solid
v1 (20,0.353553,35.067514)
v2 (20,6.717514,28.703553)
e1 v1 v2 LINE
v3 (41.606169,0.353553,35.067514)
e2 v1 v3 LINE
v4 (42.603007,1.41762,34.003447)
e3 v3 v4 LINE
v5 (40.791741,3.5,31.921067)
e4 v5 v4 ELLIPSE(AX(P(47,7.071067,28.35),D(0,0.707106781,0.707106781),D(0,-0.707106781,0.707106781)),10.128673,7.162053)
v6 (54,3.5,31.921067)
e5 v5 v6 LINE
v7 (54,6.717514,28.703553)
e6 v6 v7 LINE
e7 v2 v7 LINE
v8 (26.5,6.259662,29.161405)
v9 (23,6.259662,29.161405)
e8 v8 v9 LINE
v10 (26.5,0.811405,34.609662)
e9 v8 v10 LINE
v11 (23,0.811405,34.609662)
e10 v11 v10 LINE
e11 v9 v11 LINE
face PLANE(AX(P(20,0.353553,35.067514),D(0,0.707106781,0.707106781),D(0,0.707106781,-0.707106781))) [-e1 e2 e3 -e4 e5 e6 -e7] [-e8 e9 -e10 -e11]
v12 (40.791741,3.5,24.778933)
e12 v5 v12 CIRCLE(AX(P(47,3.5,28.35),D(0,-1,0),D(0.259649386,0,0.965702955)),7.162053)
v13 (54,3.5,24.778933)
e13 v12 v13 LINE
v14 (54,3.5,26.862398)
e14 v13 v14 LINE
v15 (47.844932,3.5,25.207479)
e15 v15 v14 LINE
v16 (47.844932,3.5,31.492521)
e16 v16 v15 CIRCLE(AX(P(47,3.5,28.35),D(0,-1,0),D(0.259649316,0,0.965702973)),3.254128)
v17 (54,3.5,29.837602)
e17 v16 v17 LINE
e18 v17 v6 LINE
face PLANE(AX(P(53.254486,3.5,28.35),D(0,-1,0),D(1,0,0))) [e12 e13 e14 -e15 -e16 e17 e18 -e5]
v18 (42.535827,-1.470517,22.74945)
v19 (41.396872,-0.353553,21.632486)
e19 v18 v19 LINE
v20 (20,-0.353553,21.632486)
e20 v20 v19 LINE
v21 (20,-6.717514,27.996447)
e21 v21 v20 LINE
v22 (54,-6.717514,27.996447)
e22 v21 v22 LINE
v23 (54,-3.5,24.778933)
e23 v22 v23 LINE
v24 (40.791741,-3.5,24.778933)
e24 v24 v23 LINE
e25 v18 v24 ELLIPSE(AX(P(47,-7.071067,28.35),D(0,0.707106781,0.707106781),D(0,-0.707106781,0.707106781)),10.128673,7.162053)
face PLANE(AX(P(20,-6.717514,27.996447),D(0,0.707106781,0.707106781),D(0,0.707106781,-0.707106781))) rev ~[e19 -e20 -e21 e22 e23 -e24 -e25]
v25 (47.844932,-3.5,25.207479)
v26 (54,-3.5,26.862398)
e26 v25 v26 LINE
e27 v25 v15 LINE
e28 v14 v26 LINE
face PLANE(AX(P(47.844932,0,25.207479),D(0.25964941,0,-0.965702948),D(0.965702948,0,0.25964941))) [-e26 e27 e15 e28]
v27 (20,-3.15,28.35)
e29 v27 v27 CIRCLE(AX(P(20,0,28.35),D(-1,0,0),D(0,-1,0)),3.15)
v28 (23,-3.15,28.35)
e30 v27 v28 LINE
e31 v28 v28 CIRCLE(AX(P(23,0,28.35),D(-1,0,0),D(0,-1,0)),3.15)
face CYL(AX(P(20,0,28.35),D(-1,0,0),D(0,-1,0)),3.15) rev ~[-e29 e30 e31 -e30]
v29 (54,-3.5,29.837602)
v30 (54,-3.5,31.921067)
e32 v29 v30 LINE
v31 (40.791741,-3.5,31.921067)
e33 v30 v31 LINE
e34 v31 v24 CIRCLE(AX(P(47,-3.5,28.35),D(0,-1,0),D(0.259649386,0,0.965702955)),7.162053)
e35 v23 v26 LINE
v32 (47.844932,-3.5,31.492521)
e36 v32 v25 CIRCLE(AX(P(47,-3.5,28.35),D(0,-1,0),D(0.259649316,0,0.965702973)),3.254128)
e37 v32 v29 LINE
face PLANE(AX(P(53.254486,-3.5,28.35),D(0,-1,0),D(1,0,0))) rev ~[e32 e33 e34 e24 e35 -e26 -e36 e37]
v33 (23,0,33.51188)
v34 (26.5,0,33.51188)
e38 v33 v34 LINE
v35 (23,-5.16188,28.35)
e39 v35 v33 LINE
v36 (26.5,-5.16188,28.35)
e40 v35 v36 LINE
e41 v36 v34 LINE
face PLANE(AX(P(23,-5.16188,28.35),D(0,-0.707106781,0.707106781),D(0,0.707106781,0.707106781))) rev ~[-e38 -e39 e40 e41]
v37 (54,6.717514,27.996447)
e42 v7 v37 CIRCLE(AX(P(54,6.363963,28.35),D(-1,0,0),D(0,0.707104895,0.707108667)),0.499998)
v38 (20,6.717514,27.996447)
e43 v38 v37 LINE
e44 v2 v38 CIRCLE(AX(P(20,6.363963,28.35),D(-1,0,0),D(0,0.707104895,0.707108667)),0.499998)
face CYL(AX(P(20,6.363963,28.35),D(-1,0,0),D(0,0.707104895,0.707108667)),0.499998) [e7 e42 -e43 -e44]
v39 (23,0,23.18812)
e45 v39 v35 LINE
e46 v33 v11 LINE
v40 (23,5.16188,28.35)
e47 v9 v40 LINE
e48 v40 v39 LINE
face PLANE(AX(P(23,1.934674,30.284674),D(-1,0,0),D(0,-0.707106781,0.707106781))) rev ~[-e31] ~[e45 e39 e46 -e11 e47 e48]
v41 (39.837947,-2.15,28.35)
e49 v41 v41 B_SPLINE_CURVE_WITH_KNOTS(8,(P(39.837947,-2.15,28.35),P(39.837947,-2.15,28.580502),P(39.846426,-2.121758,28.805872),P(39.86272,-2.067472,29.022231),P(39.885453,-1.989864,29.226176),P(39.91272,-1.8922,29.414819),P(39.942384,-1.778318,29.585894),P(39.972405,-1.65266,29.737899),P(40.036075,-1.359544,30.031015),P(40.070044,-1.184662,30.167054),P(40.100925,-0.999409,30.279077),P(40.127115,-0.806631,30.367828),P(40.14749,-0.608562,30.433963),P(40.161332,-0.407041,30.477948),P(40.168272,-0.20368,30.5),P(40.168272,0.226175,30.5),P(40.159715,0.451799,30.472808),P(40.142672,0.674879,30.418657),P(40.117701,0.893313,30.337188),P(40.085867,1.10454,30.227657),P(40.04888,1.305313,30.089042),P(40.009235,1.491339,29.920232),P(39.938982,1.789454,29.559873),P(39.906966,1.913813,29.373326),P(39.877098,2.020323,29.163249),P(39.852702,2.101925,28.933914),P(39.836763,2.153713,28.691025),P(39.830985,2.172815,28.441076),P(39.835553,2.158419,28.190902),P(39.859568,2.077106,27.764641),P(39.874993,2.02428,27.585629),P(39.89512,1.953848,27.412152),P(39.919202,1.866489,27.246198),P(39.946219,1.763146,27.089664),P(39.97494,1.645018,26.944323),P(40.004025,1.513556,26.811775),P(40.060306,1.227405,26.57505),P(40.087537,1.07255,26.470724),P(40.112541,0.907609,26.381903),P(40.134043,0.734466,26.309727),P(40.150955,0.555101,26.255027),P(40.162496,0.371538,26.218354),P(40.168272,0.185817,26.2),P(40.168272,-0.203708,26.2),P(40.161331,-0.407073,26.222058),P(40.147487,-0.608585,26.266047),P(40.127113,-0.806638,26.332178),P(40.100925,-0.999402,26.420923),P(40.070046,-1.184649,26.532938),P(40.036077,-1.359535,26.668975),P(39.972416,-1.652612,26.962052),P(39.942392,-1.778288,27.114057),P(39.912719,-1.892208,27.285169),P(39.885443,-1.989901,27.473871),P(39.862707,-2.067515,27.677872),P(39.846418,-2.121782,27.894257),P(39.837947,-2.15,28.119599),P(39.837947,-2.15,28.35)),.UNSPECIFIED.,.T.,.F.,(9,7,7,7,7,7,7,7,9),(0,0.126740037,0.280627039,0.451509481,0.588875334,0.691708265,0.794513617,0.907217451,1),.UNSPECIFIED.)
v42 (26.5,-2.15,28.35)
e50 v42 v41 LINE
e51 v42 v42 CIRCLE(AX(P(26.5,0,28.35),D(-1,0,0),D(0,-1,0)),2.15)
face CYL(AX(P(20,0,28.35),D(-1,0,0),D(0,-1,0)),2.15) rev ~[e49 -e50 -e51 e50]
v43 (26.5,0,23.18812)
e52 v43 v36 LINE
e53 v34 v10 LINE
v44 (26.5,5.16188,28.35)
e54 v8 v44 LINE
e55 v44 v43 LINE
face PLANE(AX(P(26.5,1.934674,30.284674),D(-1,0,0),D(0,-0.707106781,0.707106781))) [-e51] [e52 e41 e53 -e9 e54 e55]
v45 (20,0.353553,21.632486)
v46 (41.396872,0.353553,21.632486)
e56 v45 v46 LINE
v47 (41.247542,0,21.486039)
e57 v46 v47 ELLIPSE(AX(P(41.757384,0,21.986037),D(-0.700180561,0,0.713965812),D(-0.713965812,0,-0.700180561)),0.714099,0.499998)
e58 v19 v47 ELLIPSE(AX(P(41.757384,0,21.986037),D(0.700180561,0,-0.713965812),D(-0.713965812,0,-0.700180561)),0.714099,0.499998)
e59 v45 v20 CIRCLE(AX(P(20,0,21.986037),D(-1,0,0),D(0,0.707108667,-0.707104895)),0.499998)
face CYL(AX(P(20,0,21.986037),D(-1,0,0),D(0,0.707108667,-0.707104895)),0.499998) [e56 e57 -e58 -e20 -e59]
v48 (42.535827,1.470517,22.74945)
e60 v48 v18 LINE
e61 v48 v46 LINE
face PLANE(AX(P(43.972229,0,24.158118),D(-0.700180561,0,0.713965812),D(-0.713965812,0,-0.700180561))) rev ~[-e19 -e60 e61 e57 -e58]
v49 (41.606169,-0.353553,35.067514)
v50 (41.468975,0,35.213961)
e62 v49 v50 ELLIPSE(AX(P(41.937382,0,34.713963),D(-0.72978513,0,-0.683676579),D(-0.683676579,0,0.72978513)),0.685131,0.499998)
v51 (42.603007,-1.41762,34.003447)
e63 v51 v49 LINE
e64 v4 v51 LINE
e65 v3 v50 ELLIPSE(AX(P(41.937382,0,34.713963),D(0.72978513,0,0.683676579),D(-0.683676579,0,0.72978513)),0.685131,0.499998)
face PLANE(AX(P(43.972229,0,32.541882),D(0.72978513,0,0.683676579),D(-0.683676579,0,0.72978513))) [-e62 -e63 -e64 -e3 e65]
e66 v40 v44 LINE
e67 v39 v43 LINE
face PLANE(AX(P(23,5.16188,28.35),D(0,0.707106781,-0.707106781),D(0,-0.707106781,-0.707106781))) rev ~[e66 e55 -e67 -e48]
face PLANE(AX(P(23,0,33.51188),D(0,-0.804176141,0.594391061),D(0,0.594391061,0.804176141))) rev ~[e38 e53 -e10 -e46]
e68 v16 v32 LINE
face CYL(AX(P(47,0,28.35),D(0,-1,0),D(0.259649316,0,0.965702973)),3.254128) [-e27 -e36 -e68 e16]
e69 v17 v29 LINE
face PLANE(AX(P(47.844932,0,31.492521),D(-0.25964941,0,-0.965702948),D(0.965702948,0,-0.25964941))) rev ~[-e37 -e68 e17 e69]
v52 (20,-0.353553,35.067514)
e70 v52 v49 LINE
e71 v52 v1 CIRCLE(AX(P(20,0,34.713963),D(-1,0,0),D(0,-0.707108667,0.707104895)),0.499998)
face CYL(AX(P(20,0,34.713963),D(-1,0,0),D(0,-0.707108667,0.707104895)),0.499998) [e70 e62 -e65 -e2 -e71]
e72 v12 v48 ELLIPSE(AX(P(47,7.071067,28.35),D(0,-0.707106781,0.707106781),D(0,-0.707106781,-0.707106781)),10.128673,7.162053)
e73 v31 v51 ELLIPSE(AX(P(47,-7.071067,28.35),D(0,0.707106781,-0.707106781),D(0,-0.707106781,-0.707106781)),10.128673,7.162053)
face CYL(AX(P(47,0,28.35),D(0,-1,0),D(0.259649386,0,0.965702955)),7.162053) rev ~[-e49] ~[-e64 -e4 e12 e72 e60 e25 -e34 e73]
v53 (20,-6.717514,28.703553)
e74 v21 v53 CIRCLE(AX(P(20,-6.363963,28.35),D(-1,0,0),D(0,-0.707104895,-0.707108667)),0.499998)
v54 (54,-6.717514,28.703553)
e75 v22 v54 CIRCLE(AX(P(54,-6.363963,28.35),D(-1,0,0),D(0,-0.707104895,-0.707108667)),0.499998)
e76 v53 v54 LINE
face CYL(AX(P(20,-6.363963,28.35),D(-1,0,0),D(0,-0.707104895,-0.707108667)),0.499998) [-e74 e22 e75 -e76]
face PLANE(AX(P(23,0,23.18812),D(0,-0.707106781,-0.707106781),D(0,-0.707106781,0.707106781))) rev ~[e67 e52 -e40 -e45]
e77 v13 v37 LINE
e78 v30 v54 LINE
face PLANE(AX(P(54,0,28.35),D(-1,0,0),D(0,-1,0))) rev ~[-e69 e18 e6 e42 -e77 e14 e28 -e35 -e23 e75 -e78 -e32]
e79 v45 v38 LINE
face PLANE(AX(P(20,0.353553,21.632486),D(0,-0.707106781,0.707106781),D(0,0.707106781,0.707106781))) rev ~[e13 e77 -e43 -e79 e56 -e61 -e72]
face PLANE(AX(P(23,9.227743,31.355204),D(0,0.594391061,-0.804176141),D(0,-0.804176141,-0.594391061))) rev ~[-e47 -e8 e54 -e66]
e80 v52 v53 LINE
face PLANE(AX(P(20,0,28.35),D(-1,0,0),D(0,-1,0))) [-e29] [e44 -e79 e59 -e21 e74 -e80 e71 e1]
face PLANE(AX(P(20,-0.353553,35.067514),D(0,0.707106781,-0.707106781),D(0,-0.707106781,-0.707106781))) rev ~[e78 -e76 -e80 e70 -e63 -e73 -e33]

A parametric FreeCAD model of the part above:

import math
import FreeCAD as App
import Part
import Sketcher
Q = App.Units.Quantity

doc = App.newDocument("Part")
body = doc.addObject("PartDesign::Body", "Body")

# Sketch on YZ plane
sketch1 = body.newObject("Sketcher::SketchObject", "Sketch")
sketch1.AttachmentSupport = (doc.getObject("YZ_Plane"), [""])
sketch1.MapMode = "FlatFace"
sketch1.AttachmentOffset = App.Placement(App.Vector(0, 0, 20), App.Rotation())
sketch1.addGeometry(Part.LineSegment(App.Vector(0.35, 35.07, 0), App.Vector(6.72, 28.7, 0)), False)
sketch1.addGeometry(Part.ArcOfCircle(Part.Circle(App.Vector(6.36, 28.35, 0), App.Vector(0, 0, 1), 0.5), math.radians(-45), math.radians(45)), False)
sketch1.addGeometry(Part.LineSegment(App.Vector(6.72, 28, 0), App.Vector(0.35, 21.63, 0)), False)
sketch1.addGeometry(Part.ArcOfCircle(Part.Circle(App.Vector(0, 21.99, 0), App.Vector(0, 0, 1), 0.5), math.radians(-135), math.radians(-45)), False)
sketch1.addGeometry(Part.LineSegment(App.Vector(-0.35, 21.63, 0), App.Vector(-6.72, 28, 0)), False)
sketch1.addGeometry(Part.ArcOfCircle(Part.Circle(App.Vector(-6.36, 28.35, 0), App.Vector(0, 0, 1), 0.5), math.radians(135), math.radians(225)), False)
sketch1.addGeometry(Part.LineSegment(App.Vector(-6.72, 28.7, 0), App.Vector(-0.35, 35.07, 0)), False)
sketch1.addGeometry(Part.ArcOfCircle(Part.Circle(App.Vector(0, 34.71, 0), App.Vector(0, 0, 1), 0.5), math.radians(45), math.radians(135)), False)
sketch1.addConstraint(Sketcher.Constraint("Coincident", 0, 2, 1, 2))
sketch1.addConstraint(Sketcher.Constraint("Coincident", 1, 1, 2, 1))
sketch1.addConstraint(Sketcher.Constraint("Coincident", 2, 2, 3, 2))
sketch1.addConstraint(Sketcher.Constraint("Coincident", 3, 1, 4, 1))
sketch1.addConstraint(Sketcher.Constraint("Coincident", 4, 2, 5, 2))
sketch1.addConstraint(Sketcher.Constraint("Coincident", 5, 1, 6, 1))
sketch1.addConstraint(Sketcher.Constraint("Coincident", 6, 2, 7, 2))
sketch1.addConstraint(Sketcher.Constraint("Coincident", 7, 1, 0, 1))
sketch1.addConstraint(Sketcher.Constraint("Equal", 1, 3))
sketch1.addConstraint(Sketcher.Constraint("Equal", 3, 5))
sketch1.addConstraint(Sketcher.Constraint("Equal", 5, 7))
sketch1.addConstraint(Sketcher.Constraint("Symmetric", 1, 3, 5, 3, -2))
sketch1.addConstraint(Sketcher.Constraint("Symmetric", 2, 2, 3, 1, -2))
sketch1.addConstraint(Sketcher.Constraint("Symmetric", 6, 2, 7, 1, -2))
sketch1.addConstraint(Sketcher.Constraint("Perpendicular", 0, 2))
sketch1.addConstraint(Sketcher.Constraint("Perpendicular", 2, 4))
sketch1.addConstraint(Sketcher.Constraint("Horizontal", 1, 1, 4, 2))
sketch1.addConstraint(Sketcher.Constraint("Horizontal", 0, 2, 5, 1))
sketch1.addConstraint(Sketcher.Constraint("Vertical", 0, 2, 1, 1))
sketch1.addConstraint(Sketcher.Constraint("Vertical", 3, 1, 6, 2))
sketch1.addConstraint(Sketcher.Constraint("Radius", 1, Q("0.499998 mm")))
sketch1.addConstraint(Sketcher.Constraint("Distance", 0, Q("9 mm")))
sketch1.addConstraint(Sketcher.Constraint("DistanceY", -1, 1, 1, 3, Q("28.35 mm")))
sketch1.addConstraint(Sketcher.Constraint("DistanceX", 1, 3, 0, 2, Q("0.353551 mm")))
sketch1.addConstraint(Sketcher.Constraint("DistanceY", 0, 2, 7, 3, Q("6.01041 mm")))
pad1 = body.newObject("PartDesign::Pad", "Pad")
pad1.Profile = sketch1
pad1.Length = 34

# Sketch on XZ plane
sketch2 = body.newObject("Sketcher::SketchObject", "Sketch001")
sketch2.AttachmentSupport = (doc.getObject("XZ_Plane"), [""])
sketch2.MapMode = "FlatFace"
sketch2.addGeometry(Part.LineSegment(App.Vector(71, 41, 0), App.Vector(36, 41, 0)), False)
sketch2.addGeometry(Part.LineSegment(App.Vector(36, 41, 0), App.Vector(44, 33, 0)), False)
sketch2.addGeometry(Part.LineSegment(App.Vector(44, 33, 0), App.Vector(71, 33, 0)), False)
sketch2.addGeometry(Part.LineSegment(App.Vector(71, 33, 0), App.Vector(71, 41, 0)), False)
sketch2.addGeometry(Part.LineSegment(App.Vector(71, 24, 0), App.Vector(44, 24, 0)), False)
sketch2.addGeometry(Part.LineSegment(App.Vector(44, 24, 0), App.Vector(35, 16, 0)), False)
sketch2.addGeometry(Part.LineSegment(App.Vector(35, 16, 0), App.Vector(71, 16, 0)), False)
sketch2.addGeometry(Part.LineSegment(App.Vector(71, 16, 0), App.Vector(71, 24, 0)), False)
sketch2.addConstraint(Sketcher.Constraint("Coincident", 0, 2, 1, 1))
sketch2.addConstraint(Sketcher.Constraint("Coincident", 1, 2, 2, 1))
sketch2.addConstraint(Sketcher.Constraint("Coincident", 2, 2, 3, 1))
sketch2.addConstraint(Sketcher.Constraint("Coincident", 3, 2, 0, 1))
sketch2.addConstraint(Sketcher.Constraint("Coincident", 4, 2, 5, 1))
sketch2.addConstraint(Sketcher.Constraint("Coincident", 5, 2, 6, 1))
sketch2.addConstraint(Sketcher.Constraint("Coincident", 6, 2, 7, 1))
sketch2.addConstraint(Sketcher.Constraint("Coincident", 7, 2, 4, 1))
sketch2.addConstraint(Sketcher.Constraint("Horizontal", 0))
sketch2.addConstraint(Sketcher.Constraint("Horizontal", 2))
sketch2.addConstraint(Sketcher.Constraint("Vertical", 3))
sketch2.addConstraint(Sketcher.Constraint("Horizontal", 4))
sketch2.addConstraint(Sketcher.Constraint("Horizontal", 6))
sketch2.addConstraint(Sketcher.Constraint("Vertical", 7))
sketch2.addConstraint(Sketcher.Constraint("Vertical", 1, 2, 4, 2))
sketch2.addConstraint(Sketcher.Constraint("Vertical", 3, 2, 6, 2))
sketch2.addConstraint(Sketcher.Constraint("Equal", 3, 7))
sketch2.addConstraint(Sketcher.Constraint("DistanceX", 0, 2, 0, 1, Q("35.056199 mm")))
sketch2.addConstraint(Sketcher.Constraint("DistanceY", 7, 1, 7, 2, Q("8.387538 mm")))
sketch2.addConstraint(Sketcher.Constraint("DistanceY", 4, 2, 0, 2, Q("16.771302 mm")))
sketch2.addConstraint(Sketcher.Constraint("Distance", 1, Q("11.493161 mm")))
sketch2.addConstraint(Sketcher.Constraint("DistanceX", 6, 1, 6, 2, Q("35.751267 mm")))
sketch2.addConstraint(Sketcher.Constraint("DistanceY", -1, 1, 0, 2, Q("40.92942 mm")))
sketch2.addConstraint(Sketcher.Constraint("DistanceX", -1, 1, 1, 2, Q("43.972229 mm")))
pocket1 = body.newObject("PartDesign::Pocket", "Pocket")
pocket1.Profile = sketch2
pocket1.Type = "ThroughAll"
pocket1.Midplane = True

# Sketch on XZ plane
sketch3 = body.newObject("Sketcher::SketchObject", "Sketch002")
sketch3.AttachmentSupport = (doc.getObject("XZ_Plane"), [""])
sketch3.MapMode = "FlatFace"
sketch3.addGeometry(Part.LineSegment(App.Vector(67.1, 30.4, 0), App.Vector(48.9, 35.3, 0)), False)
sketch3.addGeometry(Part.ArcOfCircle(Part.Circle(App.Vector(47, 28.4, 0), App.Vector(0, 0, 1), 7.2), math.radians(75), math.radians(285)), False)
sketch3.addGeometry(Part.LineSegment(App.Vector(48.9, 21.4, 0), App.Vector(67.1, 26.4, 0)), False)
sketch3.addGeometry(Part.LineSegment(App.Vector(67.1, 26.4, 0), App.Vector(67.1, 30.4, 0)), False)
sketch3.addGeometry(Part.ArcOfCircle(Part.Circle(App.Vector(47, 28.4, 0), App.Vector(0, 0, 1), 3.3), math.radians(75), math.radians(285)), False)
sketch3.addGeometry(Part.LineSegment(App.Vector(47.8, 31.5, 0), App.Vector(59.5, 28.4, 0)), False)
sketch3.addGeometry(Part.LineSegment(App.Vector(59.5, 28.4, 0), App.Vector(47.8, 25.2, 0)), False)
sketch3.addConstraint(Sketcher.Constraint("Tangent", 0, 2, 1, 1))
sketch3.addConstraint(Sketcher.Constraint("Tangent", 1, 2, 2, 1))
sketch3.addConstraint(Sketcher.Constraint("Coincident", 2, 2, 3, 1))
sketch3.addConstraint(Sketcher.Constraint("Coincident", 3, 2, 0, 1))
sketch3.addConstraint(Sketcher.Constraint("Tangent", 4, 1, 5, 1))
sketch3.addConstraint(Sketcher.Constraint("Coincident", 5, 2, 6, 1))
sketch3.addConstraint(Sketcher.Constraint("Tangent", 6, 2, 4, 2))
sketch3.addConstraint(Sketcher.Constraint("Vertical", 3))
sketch3.addConstraint(Sketcher.Constraint("Coincident", 4, 3, 1, 3))
sketch3.addConstraint(Sketcher.Constraint("Parallel", 0, 5))
sketch3.addConstraint(Sketcher.Constraint("Parallel", 2, 6))
sketch3.addConstraint(Sketcher.Constraint("Horizontal", 4, 3, 5, 2))
sketch3.addConstraint(Sketcher.Constraint("DistanceY", 3, 1, 3, 2, Q("4 mm")))
sketch3.addConstraint(Sketcher.Constraint("DistanceX", -1, 1, 1, 3, Q("47 mm")))
sketch3.addConstraint(Sketcher.Constraint("DistanceY", -1, 1, 1, 3, Q("28.35 mm")))
sketch3.addConstraint(Sketcher.Constraint("Radius", 1, Q("7.162053 mm")))
sketch3.addConstraint(Sketcher.Constraint("Radius", 4, Q("3.254128 mm")))
sketch3.addConstraint(Sketcher.Constraint("Distance", 5, Q("12.102939 mm")))
pocket2 = body.newObject("PartDesign::Pocket", "Pocket001")
pocket2.Profile = sketch3
pocket2.Length = 7
pocket2.Midplane = True

# Sketch on YZ plane
sketch4 = body.newObject("Sketcher::SketchObject", "Sketch003")
sketch4.AttachmentSupport = (doc.getObject("YZ_Plane"), [""])
sketch4.MapMode = "FlatFace"
sketch4.AttachmentOffset = App.Placement(App.Vector(0, 0, 20), App.Rotation())
sketch4.addGeometry(Part.Circle(App.Vector(0, 28.4, 0), App.Vector(0, 0, 1), 2.1), False)
sketch4.addConstraint(Sketcher.Constraint("PointOnObject", 0, 3, -2))
sketch4.addConstraint(Sketcher.Constraint("Diameter", 0, Q("4.3 mm")))
sketch4.addConstraint(Sketcher.Constraint("DistanceY", -1, 1, 0, 3, Q("28.35 mm")))
pocket3 = body.newObject("PartDesign::Pocket", "Pocket002")
pocket3.Profile = sketch4
pocket3.Length = 21
pocket3.Reversed = True

# Sketch on YZ plane
sketch5 = body.newObject("Sketcher::SketchObject", "Sketch004")
sketch5.AttachmentSupport = (doc.getObject("YZ_Plane"), [""])
sketch5.MapMode = "FlatFace"
sketch5.AttachmentOffset = App.Placement(App.Vector(0, 0, 23), App.Rotation())
sketch5.addGeometry(Part.LineSegment(App.Vector(0, 23, 0), App.Vector(-5, 28, 0)), False)
sketch5.addGeometry(Part.LineSegment(App.Vector(-5, 28, 0), App.Vector(0, 34, 0)), False)
sketch5.addGeometry(Part.LineSegment(App.Vector(0, 34, 0), App.Vector(3, 38, 0)), False)
sketch5.addGeometry(Part.LineSegment(App.Vector(3, 38, 0), App.Vector(9, 31, 0)), False)
sketch5.addGeometry(Part.LineSegment(App.Vector(9, 31, 0), App.Vector(5, 28, 0)), False)
sketch5.addGeometry(Part.LineSegment(App.Vector(5, 28, 0), App.Vector(0, 23, 0)), False)
sketch5.addConstraint(Sketcher.Constraint("Coincident", 0, 2, 1, 1))
sketch5.addConstraint(Sketcher.Constraint("Coincident", 1, 2, 2, 1))
sketch5.addConstraint(Sketcher.Constraint("Coincident", 2, 2, 3, 1))
sketch5.addConstraint(Sketcher.Constraint("Coincident", 3, 2, 4, 1))
sketch5.addConstraint(Sketcher.Constraint("Coincident", 4, 2, 5, 1))
sketch5.addConstraint(Sketcher.Constraint("Coincident", 5, 2, 0, 1))
sketch5.addConstraint(Sketcher.Constraint("Symmetric", 0, 2, 4, 2, -2))
sketch5.addConstraint(Sketcher.Constraint("PointOnObject", 1, 2, -2))
sketch5.addConstraint(Sketcher.Constraint("PointOnObject", 5, 2, -2))
sketch5.addConstraint(Sketcher.Constraint("Perpendicular", 0, 1))
sketch5.addConstraint(Sketcher.Constraint("Perpendicular", 1, 3))
sketch5.addConstraint(Sketcher.Constraint("Perpendicular", 3, 5))
sketch5.addConstraint(Sketcher.Constraint("Equal", 2, 4))
sketch5.addConstraint(Sketcher.Constraint("Distance", 0, Q("7.3 mm")))
sketch5.addConstraint(Sketcher.Constraint("Distance", 3, Q("8.8 mm")))
sketch5.addConstraint(Sketcher.Constraint("DistanceY", -1, 1, 0, 2, Q("28.35 mm")))
sketch5.addConstraint(Sketcher.Constraint("Distance", 2, Q("5.055937 mm")))
pocket4 = body.newObject("PartDesign::Pocket", "Pocket003")
pocket4.Profile = sketch5
pocket4.Length = 3.5
pocket4.Reversed = True

# Sketch on YZ plane
sketch6 = body.newObject("Sketcher::SketchObject", "Sketch005")
sketch6.AttachmentSupport = (doc.getObject("YZ_Plane"), [""])
sketch6.MapMode = "FlatFace"
sketch6.AttachmentOffset = App.Placement(App.Vector(0, 0, 20), App.Rotation())
sketch6.addGeometry(Part.Circle(App.Vector(0, 28.4, 0), App.Vector(0, 0, 1), 3.1), False)
sketch6.addConstraint(Sketcher.Constraint("PointOnObject", 0, 3, -2))
sketch6.addConstraint(Sketcher.Constraint("Diameter", 0, Q("6.3 mm")))
sketch6.addConstraint(Sketcher.Constraint("DistanceY", -1, 1, 0, 3, Q("28.35 mm")))
pocket5 = body.newObject("PartDesign::Pocket", "Pocket004")
pocket5.Profile = sketch6
pocket5.Length = 4
pocket5.Reversed = True

doc.recompute()
